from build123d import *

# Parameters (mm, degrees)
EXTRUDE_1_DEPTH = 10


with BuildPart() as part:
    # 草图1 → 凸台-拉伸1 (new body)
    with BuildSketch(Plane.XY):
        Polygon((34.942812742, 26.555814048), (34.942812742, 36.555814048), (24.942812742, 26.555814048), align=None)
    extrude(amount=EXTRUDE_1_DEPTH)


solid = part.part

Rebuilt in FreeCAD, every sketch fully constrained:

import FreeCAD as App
import Part
import Sketcher
from FreeCAD import Vector

doc = App.newDocument("Part")
params = doc.addObject("Spreadsheet::Sheet", "Params")
for row, (alias, value) in enumerate([
    ("sketch1_width", "10 mm"),
    ("pad1_length", "10 mm"),
], start=1):
    params.set(f"A{row}", alias)
    params.set(f"B{row}", "=" + value)
    params.setAlias(f"B{row}", alias)

body = doc.addObject("PartDesign::Body", "Body")

# Sketch on XY plane
sketch1 = body.newObject("Sketcher::SketchObject", "Sketch")
sketch1.AttachmentSupport = (doc.getObject("XY_Plane"), [""])
sketch1.MapMode = "FlatFace"
sketch1.addGeometry(Part.LineSegment(Vector(35, 27, 0), Vector(35, 37, 0)), False)
sketch1.addGeometry(Part.LineSegment(Vector(35, 37, 0), Vector(25, 27, 0)), False)
sketch1.addGeometry(Part.LineSegment(Vector(25, 27, 0), Vector(35, 27, 0)), False)
sketch1.addConstraint(Sketcher.Constraint("Coincident", 0, 2, 1, 1))
sketch1.addConstraint(Sketcher.Constraint("Coincident", 1, 2, 2, 1))
sketch1.addConstraint(Sketcher.Constraint("Coincident", 2, 2, 0, 1))
sketch1.addConstraint(Sketcher.Constraint("Vertical", 0))
sketch1.addConstraint(Sketcher.Constraint("Horizontal", 2))
sketch1.addConstraint(Sketcher.Constraint("Equal", 2, 0))
sketch1.addConstraint(Sketcher.Constraint("DistanceX", 2, 1, 2, 2, 10.0))
sketch1.addConstraint(Sketcher.Constraint("DistanceX", -1, 1, 0, 2, 34.942813))
sketch1.addConstraint(Sketcher.Constraint("DistanceY", -1, 1, 0, 2, 36.555814))
sketch1.setExpression("Constraints[6]", "Params.sketch1_width")
pad1 = body.newObject("PartDesign::Pad", "Pad")
pad1.Profile = sketch1
pad1.setExpression("Length", "Params.pad1_length")

doc.recompute()
